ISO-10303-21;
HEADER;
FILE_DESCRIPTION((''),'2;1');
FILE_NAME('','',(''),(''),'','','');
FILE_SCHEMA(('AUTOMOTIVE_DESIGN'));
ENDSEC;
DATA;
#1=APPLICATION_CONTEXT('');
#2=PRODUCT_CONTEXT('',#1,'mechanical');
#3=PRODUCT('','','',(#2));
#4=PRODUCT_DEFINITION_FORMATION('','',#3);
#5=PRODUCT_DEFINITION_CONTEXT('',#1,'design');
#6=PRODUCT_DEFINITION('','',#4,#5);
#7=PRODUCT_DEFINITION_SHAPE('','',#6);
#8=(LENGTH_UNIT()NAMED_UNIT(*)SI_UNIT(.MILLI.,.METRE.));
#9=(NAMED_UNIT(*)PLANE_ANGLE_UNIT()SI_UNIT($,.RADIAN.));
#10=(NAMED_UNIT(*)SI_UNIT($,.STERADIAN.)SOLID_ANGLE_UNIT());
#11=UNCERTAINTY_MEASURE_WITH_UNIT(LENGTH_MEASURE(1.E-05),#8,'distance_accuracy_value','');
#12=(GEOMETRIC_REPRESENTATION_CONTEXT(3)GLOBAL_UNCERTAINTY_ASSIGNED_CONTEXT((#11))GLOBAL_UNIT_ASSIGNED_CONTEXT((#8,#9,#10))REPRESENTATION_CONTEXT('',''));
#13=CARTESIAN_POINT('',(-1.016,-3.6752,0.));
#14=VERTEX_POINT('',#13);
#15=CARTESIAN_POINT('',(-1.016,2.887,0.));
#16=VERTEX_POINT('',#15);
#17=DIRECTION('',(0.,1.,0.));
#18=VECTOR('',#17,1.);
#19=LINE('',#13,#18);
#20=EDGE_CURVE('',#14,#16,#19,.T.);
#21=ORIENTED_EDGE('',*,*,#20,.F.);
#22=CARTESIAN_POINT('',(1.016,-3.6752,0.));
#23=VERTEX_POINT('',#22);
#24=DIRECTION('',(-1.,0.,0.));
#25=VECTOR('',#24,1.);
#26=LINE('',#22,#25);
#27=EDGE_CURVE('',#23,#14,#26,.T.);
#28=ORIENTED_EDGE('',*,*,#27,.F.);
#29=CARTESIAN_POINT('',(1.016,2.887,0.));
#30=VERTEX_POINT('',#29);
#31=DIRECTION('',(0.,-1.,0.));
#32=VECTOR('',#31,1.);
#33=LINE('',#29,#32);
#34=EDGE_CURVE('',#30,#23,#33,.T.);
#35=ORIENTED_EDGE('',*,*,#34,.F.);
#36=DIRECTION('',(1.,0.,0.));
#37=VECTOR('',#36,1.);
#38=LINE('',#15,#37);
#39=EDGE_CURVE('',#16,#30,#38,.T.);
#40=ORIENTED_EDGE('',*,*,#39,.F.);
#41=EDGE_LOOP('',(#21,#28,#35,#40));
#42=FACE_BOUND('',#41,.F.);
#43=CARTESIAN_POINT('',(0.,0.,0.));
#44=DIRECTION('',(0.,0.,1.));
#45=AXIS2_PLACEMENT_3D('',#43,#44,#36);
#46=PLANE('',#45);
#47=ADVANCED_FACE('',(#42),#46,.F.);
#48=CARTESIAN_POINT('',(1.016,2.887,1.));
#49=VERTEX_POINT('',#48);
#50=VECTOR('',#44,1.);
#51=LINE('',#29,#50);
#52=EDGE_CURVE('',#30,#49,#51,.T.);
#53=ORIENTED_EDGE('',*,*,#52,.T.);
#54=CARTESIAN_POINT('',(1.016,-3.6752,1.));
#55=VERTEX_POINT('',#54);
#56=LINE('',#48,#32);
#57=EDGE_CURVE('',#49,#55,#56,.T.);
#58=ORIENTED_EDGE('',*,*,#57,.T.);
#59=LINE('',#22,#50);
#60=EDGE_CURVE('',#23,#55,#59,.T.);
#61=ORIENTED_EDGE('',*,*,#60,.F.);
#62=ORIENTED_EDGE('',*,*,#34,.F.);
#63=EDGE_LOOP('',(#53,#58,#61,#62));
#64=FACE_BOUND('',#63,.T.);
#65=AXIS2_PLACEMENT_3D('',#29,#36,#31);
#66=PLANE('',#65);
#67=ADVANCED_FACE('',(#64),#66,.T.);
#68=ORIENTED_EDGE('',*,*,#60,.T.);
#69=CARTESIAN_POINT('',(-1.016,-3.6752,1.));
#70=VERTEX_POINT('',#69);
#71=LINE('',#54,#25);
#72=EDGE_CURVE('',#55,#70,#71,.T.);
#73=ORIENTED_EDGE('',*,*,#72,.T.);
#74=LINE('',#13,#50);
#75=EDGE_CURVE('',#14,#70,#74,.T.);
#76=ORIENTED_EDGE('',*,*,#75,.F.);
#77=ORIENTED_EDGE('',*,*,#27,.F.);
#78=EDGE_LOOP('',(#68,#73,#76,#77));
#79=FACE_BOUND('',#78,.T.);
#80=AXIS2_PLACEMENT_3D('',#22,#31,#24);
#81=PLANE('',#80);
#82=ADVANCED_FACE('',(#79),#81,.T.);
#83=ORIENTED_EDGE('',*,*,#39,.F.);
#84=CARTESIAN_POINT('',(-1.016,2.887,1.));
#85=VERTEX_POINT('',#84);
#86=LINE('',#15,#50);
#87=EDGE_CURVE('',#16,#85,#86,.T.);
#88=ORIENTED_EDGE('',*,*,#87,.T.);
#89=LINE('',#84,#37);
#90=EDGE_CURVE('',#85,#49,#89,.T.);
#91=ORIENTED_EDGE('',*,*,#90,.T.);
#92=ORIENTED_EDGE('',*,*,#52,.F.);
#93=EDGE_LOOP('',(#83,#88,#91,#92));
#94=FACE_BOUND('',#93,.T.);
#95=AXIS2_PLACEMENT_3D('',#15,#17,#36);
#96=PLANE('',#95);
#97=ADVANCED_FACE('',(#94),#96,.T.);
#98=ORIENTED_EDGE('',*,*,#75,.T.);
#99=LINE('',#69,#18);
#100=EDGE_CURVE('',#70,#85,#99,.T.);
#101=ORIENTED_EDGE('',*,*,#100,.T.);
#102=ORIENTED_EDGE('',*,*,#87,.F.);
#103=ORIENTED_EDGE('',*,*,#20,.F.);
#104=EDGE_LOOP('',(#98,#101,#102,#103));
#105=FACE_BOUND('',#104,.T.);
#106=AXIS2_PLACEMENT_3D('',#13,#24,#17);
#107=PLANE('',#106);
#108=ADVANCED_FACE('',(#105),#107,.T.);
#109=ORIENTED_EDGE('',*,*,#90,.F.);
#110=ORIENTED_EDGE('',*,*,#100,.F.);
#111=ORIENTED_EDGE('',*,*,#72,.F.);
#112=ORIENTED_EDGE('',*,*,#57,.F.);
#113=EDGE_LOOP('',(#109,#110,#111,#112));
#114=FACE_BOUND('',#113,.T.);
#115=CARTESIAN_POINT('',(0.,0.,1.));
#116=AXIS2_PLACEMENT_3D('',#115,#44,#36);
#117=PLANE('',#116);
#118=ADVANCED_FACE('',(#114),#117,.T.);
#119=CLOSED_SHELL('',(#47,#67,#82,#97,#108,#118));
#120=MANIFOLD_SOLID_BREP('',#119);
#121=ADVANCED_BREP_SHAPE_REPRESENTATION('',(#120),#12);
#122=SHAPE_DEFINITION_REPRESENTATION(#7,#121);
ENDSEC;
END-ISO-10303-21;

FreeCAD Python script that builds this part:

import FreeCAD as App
import Part
import Sketcher

V = App.Vector
Q = App.Units.Quantity


def add_polygon(sketch, points):
    """Adds a closed chain of lines whose ends are joined by coincident constraints."""
    first, n = sketch.GeometryCount, len(points)
    for a, b in zip(points, points[1:] + points[:1]):
        sketch.addGeometry(Part.LineSegment(App.Vector(*a, 0), App.Vector(*b, 0)), False)
    for i in range(n):
        sketch.addConstraint(Sketcher.Constraint("Coincident", first + i, 2, first + (i + 1) % n, 1))

doc = App.newDocument("Part")
body = doc.addObject("PartDesign::Body", "Body")

sketch1 = body.newObject("Sketcher::SketchObject", "Sketch")
sketch1.AttachmentSupport = (doc.getObject("XY_Plane"), [""])
sketch1.MapMode = "FlatFace"
add_polygon(sketch1, [(1, 2.9), (-1, 2.9), (-1, -3.7), (1, -3.7)])
sketch1.addConstraint(Sketcher.Constraint("Horizontal", 0))
sketch1.addConstraint(Sketcher.Constraint("Vertical", 1))
sketch1.addConstraint(Sketcher.Constraint("Horizontal", 2))
sketch1.addConstraint(Sketcher.Constraint("Vertical", 3))
sketch1.addConstraint(Sketcher.Constraint("DistanceX", 0, 2, 0, 1, Q("2.032 mm")))
sketch1.addConstraint(Sketcher.Constraint("DistanceY", 1, 2, 1, 1, Q("6.5622 mm")))
sketch1.addConstraint(Sketcher.Constraint("DistanceX", 0, 2, -1, 1, Q("1.016 mm")))
sketch1.addConstraint(Sketcher.Constraint("DistanceY", -1, 1, 0, 2, Q("2.887 mm")))
pad1 = body.newObject("PartDesign::Pad", "Pad")
pad1.Profile = sketch1
pad1.Length = 1

doc.recompute()
